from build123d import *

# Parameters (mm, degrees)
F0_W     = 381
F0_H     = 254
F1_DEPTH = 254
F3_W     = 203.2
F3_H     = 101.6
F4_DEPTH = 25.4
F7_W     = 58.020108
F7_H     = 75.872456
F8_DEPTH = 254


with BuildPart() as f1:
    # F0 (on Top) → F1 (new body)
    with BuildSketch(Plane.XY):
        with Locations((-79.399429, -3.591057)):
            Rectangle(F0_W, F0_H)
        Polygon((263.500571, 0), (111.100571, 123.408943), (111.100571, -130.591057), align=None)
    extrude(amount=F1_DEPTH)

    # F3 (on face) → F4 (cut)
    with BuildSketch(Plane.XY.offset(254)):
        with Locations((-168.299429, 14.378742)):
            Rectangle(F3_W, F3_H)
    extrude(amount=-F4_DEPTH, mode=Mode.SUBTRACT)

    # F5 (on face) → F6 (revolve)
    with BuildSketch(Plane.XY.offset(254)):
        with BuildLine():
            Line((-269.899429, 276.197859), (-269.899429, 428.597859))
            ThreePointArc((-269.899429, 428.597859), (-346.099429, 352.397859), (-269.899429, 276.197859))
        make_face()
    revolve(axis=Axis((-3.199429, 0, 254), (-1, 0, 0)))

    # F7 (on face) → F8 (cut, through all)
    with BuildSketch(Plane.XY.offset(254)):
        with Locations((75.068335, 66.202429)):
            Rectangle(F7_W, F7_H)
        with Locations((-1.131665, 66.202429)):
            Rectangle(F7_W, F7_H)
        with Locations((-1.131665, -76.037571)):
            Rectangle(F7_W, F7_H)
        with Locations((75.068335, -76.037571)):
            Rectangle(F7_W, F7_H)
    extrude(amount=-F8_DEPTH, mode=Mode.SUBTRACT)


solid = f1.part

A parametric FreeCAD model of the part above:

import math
import FreeCAD as App
import Part
import Sketcher

V = App.Vector
Q = App.Units.Quantity


def add_polygon(sketch, points):
    """Adds a closed chain of lines whose ends are joined by coincident constraints."""
    first, n = sketch.GeometryCount, len(points)
    for a, b in zip(points, points[1:] + points[:1]):
        sketch.addGeometry(Part.LineSegment(App.Vector(*a, 0), App.Vector(*b, 0)), False)
    for i in range(n):
        sketch.addConstraint(Sketcher.Constraint("Coincident", first + i, 2, first + (i + 1) % n, 1))

doc = App.newDocument("Part")
body = doc.addObject("PartDesign::Body", "Body")

sketch1 = body.newObject("Sketcher::SketchObject", "Sketch")
sketch1.AttachmentSupport = (doc.getObject("XY_Plane"), [""])
sketch1.MapMode = "FlatFace"
add_polygon(sketch1, [(-270, 123), (-270, -131), (111, -131), (264, 0), (111, 123)])
sketch1.addConstraint(Sketcher.Constraint("Vertical", 0))
sketch1.addConstraint(Sketcher.Constraint("Horizontal", 1))
sketch1.addConstraint(Sketcher.Constraint("Horizontal", 4))
sketch1.addConstraint(Sketcher.Constraint("PointOnObject", 2, 2, -1))
sketch1.addConstraint(Sketcher.Constraint("Vertical", 1, 2, 3, 2))
sketch1.addConstraint(Sketcher.Constraint("DistanceX", 1, 1, 1, 2, Q("15 in")))
sketch1.addConstraint(Sketcher.Constraint("DistanceY", 0, 2, 0, 1, Q("10 in")))
sketch1.addConstraint(Sketcher.Constraint("DistanceX", 1, 2, 2, 2, Q("6 in")))
sketch1.addConstraint(Sketcher.Constraint("Distance", 2, Q("200.698242 mm")))
sketch1.addConstraint(Sketcher.Constraint("DistanceX", 0, 2, -1, 1, Q("269.899429 mm")))
pad1 = body.newObject("PartDesign::Pad", "Pad")
pad1.Profile = sketch1
pad1.Length = Q("10 in")

sketch2 = body.newObject("Sketcher::SketchObject", "Sketch001")
sketch2.AttachmentSupport = (doc.getObject("XY_Plane"), [""])
sketch2.MapMode = "FlatFace"
sketch2.AttachmentOffset = App.Placement(V(0, 0, 10 * 25.4), App.Rotation())
add_polygon(sketch2, [(-270, 65), (-270, -36), (-67, -36), (-67, 65)])
sketch2.addConstraint(Sketcher.Constraint("Vertical", 0))
sketch2.addConstraint(Sketcher.Constraint("Horizontal", 1))
sketch2.addConstraint(Sketcher.Constraint("Vertical", 2))
sketch2.addConstraint(Sketcher.Constraint("Horizontal", 3))
sketch2.addConstraint(Sketcher.Constraint("DistanceX", 1, 1, 1, 2, Q("8 in")))
sketch2.addConstraint(Sketcher.Constraint("DistanceY", 0, 2, 0, 1, Q("4 in")))
sketch2.addConstraint(Sketcher.Constraint("DistanceX", 0, 2, -1, 1, Q("269.899429 mm")))
sketch2.addConstraint(Sketcher.Constraint("DistanceY", 0, 2, -1, 1, Q("36.421258 mm")))
pocket1 = body.newObject("PartDesign::Pocket", "Pocket")
pocket1.Profile = sketch2
pocket1.Length = Q("1 in")

sketch3 = body.newObject("Sketcher::SketchObject", "Sketch002")
sketch3.AttachmentSupport = (doc.getObject("XY_Plane"), [""])
sketch3.MapMode = "FlatFace"
sketch3.AttachmentOffset = App.Placement(V(0, 0, 10 * 25.4), App.Rotation())
sketch3.addGeometry(Part.LineSegment(V(-270, 276, 0), V(-270, 429, 0)), False)
sketch3.addGeometry(Part.ArcOfCircle(Part.Circle(V(-270, 352, 0), V(0, 0, 1), 76), math.radians(90), math.radians(270)), False)
sketch3.addConstraint(Sketcher.Constraint("Coincident", 0, 1, 1, 2))
sketch3.addConstraint(Sketcher.Constraint("Coincident", 1, 1, 0, 2))
sketch3.addConstraint(Sketcher.Constraint("Vertical", 0))
sketch3.addConstraint(Sketcher.Constraint("Vertical", 1, 3, 0, 1))
sketch3.addConstraint(Sketcher.Constraint("Radius", 1, Q("3 in")))
sketch3.addConstraint(Sketcher.Constraint("DistanceX", 1, 3, -1, 1, Q("269.899429 mm")))
sketch3.addConstraint(Sketcher.Constraint("DistanceY", -1, 1, 1, 3, Q("352.397859 mm")))
revolution = body.newObject("PartDesign::Revolution", "Revolution")
revolution.Profile = sketch3
revolution.ReferenceAxis = (sketch3, ["H_Axis"])
revolution.Angle = 360

sketch4 = body.newObject("Sketcher::SketchObject", "Sketch003")
sketch4.AttachmentSupport = (doc.getObject("XY_Plane"), [""])
sketch4.MapMode = "FlatFace"
sketch4.AttachmentOffset = App.Placement(V(0, 0, 10 * 25.4), App.Rotation())
add_polygon(sketch4, [(46, 104), (46, 28), (104, 28), (104, 104)])
add_polygon(sketch4, [(-30, 104), (-30, 28), (28, 28), (28, 104)])
add_polygon(sketch4, [(-30, -38), (-30, -114), (28, -114), (28, -38)])
add_polygon(sketch4, [(46, -38), (46, -114), (104, -114), (104, -38)])
sketch4.addConstraint(Sketcher.Constraint("Vertical", 0))
sketch4.addConstraint(Sketcher.Constraint("Horizontal", 1))
sketch4.addConstraint(Sketcher.Constraint("Vertical", 2))
sketch4.addConstraint(Sketcher.Constraint("Horizontal", 3))
sketch4.addConstraint(Sketcher.Constraint("Vertical", 4))
sketch4.addConstraint(Sketcher.Constraint("Horizontal", 5))
sketch4.addConstraint(Sketcher.Constraint("Vertical", 6))
sketch4.addConstraint(Sketcher.Constraint("Horizontal", 7))
sketch4.addConstraint(Sketcher.Constraint("Vertical", 8))
sketch4.addConstraint(Sketcher.Constraint("Horizontal", 9))
sketch4.addConstraint(Sketcher.Constraint("Vertical", 10))
sketch4.addConstraint(Sketcher.Constraint("Horizontal", 11))
sketch4.addConstraint(Sketcher.Constraint("Vertical", 12))
sketch4.addConstraint(Sketcher.Constraint("Horizontal", 13))
sketch4.addConstraint(Sketcher.Constraint("Vertical", 14))
sketch4.addConstraint(Sketcher.Constraint("Horizontal", 15))
sketch4.addConstraint(Sketcher.Constraint("Horizontal", 1, 2, 4, 2))
sketch4.addConstraint(Sketcher.Constraint("Horizontal", 3, 2, 6, 2))
sketch4.addConstraint(Sketcher.Constraint("Horizontal", 9, 2, 12, 2))
sketch4.addConstraint(Sketcher.Constraint("Horizontal", 11, 2, 14, 2))
sketch4.addConstraint(Sketcher.Constraint("Vertical", 7, 2, 8, 2))
sketch4.addConstraint(Sketcher.Constraint("Vertical", 6, 2, 9, 2))
sketch4.addConstraint(Sketcher.Constraint("Vertical", 3, 2, 12, 2))
sketch4.addConstraint(Sketcher.Constraint("Vertical", 2, 2, 13, 2))
sketch4.addConstraint(Sketcher.Constraint("Equal", 3, 5))
sketch4.addConstraint(Sketcher.Constraint("Equal", 6, 8))
sketch4.addConstraint(Sketcher.Constraint("DistanceX", 4, 2, 0, 2, Q("3 in")))
sketch4.addConstraint(Sketcher.Constraint("DistanceY", 8, 2, 4, 2, Q("5.6 in")))
sketch4.addConstraint(Sketcher.Constraint("DistanceY", -1, 1, 0, 2, Q("28.266201 mm")))
sketch4.addConstraint(Sketcher.Constraint("DistanceX", 1, 1, 1, 2, Q("58.020108 mm")))
sketch4.addConstraint(Sketcher.Constraint("DistanceY", 0, 2, 0, 1, Q("75.872456 mm")))
sketch4.addConstraint(Sketcher.Constraint("DistanceX", -1, 1, 0, 2, Q("46.058281 mm")))
pocket2 = body.newObject("PartDesign::Pocket", "Pocket001")
pocket2.Profile = sketch4
pocket2.Type = "ThroughAll"

doc.recompute()
